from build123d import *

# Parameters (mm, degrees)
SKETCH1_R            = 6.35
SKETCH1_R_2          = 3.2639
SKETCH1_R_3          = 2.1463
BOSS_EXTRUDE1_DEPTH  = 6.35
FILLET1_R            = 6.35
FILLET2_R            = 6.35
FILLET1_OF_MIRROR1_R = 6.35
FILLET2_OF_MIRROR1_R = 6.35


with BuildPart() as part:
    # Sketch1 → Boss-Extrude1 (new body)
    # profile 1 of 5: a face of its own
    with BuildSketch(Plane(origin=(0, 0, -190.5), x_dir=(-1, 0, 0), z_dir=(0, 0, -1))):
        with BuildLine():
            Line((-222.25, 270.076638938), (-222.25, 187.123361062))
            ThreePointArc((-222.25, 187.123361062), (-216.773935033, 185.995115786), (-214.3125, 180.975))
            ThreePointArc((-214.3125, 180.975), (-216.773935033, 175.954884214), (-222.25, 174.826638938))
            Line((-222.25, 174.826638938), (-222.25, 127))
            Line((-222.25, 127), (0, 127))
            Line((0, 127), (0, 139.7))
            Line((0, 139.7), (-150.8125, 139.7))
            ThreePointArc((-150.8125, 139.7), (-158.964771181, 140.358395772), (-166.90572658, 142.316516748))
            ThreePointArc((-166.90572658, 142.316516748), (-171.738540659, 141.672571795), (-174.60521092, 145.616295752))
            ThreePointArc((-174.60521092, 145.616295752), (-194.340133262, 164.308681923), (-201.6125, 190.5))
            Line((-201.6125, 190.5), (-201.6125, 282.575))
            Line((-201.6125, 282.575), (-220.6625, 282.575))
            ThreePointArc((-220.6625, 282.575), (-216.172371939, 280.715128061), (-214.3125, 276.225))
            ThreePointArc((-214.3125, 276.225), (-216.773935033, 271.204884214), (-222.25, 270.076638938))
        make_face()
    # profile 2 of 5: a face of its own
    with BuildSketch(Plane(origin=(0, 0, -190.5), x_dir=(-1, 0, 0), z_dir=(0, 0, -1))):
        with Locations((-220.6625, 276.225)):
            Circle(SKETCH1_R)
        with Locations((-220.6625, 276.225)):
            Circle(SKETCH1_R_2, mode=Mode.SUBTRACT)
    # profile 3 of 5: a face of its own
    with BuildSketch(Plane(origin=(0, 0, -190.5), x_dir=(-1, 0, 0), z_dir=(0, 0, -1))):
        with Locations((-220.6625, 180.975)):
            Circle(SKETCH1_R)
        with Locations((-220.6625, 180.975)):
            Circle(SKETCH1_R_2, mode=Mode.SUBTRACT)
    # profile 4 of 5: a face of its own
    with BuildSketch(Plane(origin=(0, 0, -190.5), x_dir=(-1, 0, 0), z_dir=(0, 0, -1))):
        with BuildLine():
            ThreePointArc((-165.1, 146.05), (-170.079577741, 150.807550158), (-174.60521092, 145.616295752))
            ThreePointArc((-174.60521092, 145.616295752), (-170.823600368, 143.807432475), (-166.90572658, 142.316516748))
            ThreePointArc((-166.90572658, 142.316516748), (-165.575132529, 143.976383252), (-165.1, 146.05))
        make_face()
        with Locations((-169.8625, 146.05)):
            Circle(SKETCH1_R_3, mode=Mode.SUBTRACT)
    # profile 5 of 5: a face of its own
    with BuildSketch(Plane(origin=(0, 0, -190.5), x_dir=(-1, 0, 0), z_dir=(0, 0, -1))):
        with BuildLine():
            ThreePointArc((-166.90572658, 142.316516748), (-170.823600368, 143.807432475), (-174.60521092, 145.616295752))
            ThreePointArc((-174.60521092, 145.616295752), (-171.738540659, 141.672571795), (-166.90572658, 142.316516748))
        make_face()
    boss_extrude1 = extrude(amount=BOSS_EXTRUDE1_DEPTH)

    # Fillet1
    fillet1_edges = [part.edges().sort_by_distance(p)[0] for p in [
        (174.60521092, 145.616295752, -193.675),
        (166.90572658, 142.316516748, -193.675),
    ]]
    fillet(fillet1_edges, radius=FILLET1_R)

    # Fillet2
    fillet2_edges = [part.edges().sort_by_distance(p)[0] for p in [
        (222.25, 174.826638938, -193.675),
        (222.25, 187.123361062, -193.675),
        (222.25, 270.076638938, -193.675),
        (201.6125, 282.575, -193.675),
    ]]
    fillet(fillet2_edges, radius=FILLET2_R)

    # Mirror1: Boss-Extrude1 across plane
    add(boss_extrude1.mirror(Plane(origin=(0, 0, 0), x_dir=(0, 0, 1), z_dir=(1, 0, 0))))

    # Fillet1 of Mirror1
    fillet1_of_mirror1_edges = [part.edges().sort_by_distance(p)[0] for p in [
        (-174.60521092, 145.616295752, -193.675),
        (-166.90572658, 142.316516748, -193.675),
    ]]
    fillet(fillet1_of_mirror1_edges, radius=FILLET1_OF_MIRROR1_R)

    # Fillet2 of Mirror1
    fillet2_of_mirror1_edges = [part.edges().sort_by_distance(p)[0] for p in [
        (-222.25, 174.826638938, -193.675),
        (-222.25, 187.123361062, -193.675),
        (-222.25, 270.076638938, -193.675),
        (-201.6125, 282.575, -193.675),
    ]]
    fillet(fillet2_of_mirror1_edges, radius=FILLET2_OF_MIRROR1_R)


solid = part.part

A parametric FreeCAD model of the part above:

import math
import FreeCAD as App
import Part
import Sketcher

V = App.Vector
Q = App.Units.Quantity


def edges_at(feature, points):
    """Names of the edges that pass closest to the given points."""
    edges = feature.Shape.Edges
    near = lambda p: min(range(len(edges)), key=lambda i: edges[i].distToShape(Part.Vertex(*p))[0])
    return sorted({f"Edge{near(p) + 1}" for p in points})

doc = App.newDocument("Part")
params = doc.addObject("Spreadsheet::Sheet", "Params")
for row, (alias, value) in enumerate([
    ("sketch1_radius", "2 in"),
    ("sketch1_radius2", "0.25 in"),
    ("sketch1_diameter", "0.257 in"),
    ("sketch1_diameter2", "0.169 in"),
    ("sketch1_height", "0.5 in"),
    ("pad1_length", "0.25 in"),
    ("fillet_radius", "0.25 in"),
    ("fillet2_radius", "0.25 in"),
    ("fillet3_radius", "0.25 in"),
    ("fillet4_radius", "0.25 in"),
], start=1):
    params.set(f"A{row}", alias)
    params.set(f"B{row}", "=" + value)
    params.setAlias(f"B{row}", alias)

body = doc.addObject("PartDesign::Body", "Body")

# Sketch on XY plane
sketch1 = body.newObject("Sketcher::SketchObject", "Sketch")
sketch1.AttachmentSupport = (doc.getObject("XY_Plane"), [""])
sketch1.MapMode = "FlatFace"
sketch1.AttachmentOffset = App.Placement(V(0, 0, -7.5 * 25.4), App.Rotation())
sketch1.addGeometry([
    Part.LineSegment(V(222.25, 270.076639, 0), V(222.25, 187.123361, 0)),  # 0
    Part.ArcOfCircle(Part.Circle(V(220.6625, 180.975, 0), V(0, 0, 1), 6.35), math.radians(-75.522488), math.radians(75.522488)),  # 1
    Part.LineSegment(V(222.25, 174.826639, 0), V(222.25, 127, 0)),  # 2
    Part.LineSegment(V(222.25, 127, 0), V(0, 127, 0)),  # 3
    Part.LineSegment(V(0, 127, 0), V(0, 139.7, 0)),  # 4
    Part.LineSegment(V(0, 139.7, 0), V(150.8125, 139.7, 0)),  # 5
    Part.ArcOfCircle(Part.Circle(V(150.8125, 190.5, 0), V(0, 0, 1), 50.8), math.radians(-90), math.radians(-71.530741)),  # 6
    Part.ArcOfCircle(Part.Circle(V(169.8625, 146.05, 0), V(0, 0, 1), 4.7625), math.radians(180), math.radians(231.622147)),  # 7
    Part.ArcOfCircle(Part.Circle(V(169.8625, 146.05, 0), V(0, 0, 1), 4.7625), math.radians(-5.224966), math.radians(180)),  # 8
    Part.ArcOfCircle(Part.Circle(V(150.8125, 190.5, 0), V(0, 0, 1), 50.8), math.radians(-62.072078), math.radians(0)),  # 9
    Part.LineSegment(V(201.6125, 190.5, 0), V(201.6125, 282.575, 0)),  # 10
    Part.LineSegment(V(201.6125, 282.575, 0), V(220.6625, 282.575, 0)),  # 11
    Part.ArcOfCircle(Part.Circle(V(220.6625, 276.225, 0), V(0, 0, 1), 6.35), math.radians(-75.522488), math.radians(90)),  # 12
    Part.Circle(V(220.6625, 180.975, 0), V(0, 0, 1), 3.2639),  # 13
    Part.Circle(V(220.6625, 276.225, 0), V(0, 0, 1), 3.2639),  # 14
    Part.Circle(V(169.8625, 146.05, 0), V(0, 0, 1), 2.1463),  # 15
], False)
sketch1.addConstraint([
    Sketcher.Constraint("Coincident", 0, 2, 1, 2),
    Sketcher.Constraint("Coincident", 1, 1, 2, 1),
    Sketcher.Constraint("Coincident", 2, 2, 3, 1),
    Sketcher.Constraint("Coincident", 3, 2, 4, 1),
    Sketcher.Constraint("Coincident", 4, 2, 5, 1),
    Sketcher.Constraint("Tangent", 5, 2, 6, 1),
    Sketcher.Constraint("Coincident", 6, 2, 7, 2),
    Sketcher.Constraint("Tangent", 7, 1, 8, 2),
    Sketcher.Constraint("Coincident", 8, 1, 9, 1),
    Sketcher.Constraint("Tangent", 9, 2, 10, 1),
    Sketcher.Constraint("Coincident", 10, 2, 11, 1),
    Sketcher.Constraint("Tangent", 11, 2, 12, 2),
    Sketcher.Constraint("Coincident", 12, 1, 0, 1),
    Sketcher.Constraint("Vertical", 0),
    Sketcher.Constraint("Vertical", 2),
    Sketcher.Constraint("Horizontal", 3),
    Sketcher.Constraint("Vertical", 4),
    Sketcher.Constraint("Horizontal", 5),
    Sketcher.Constraint("Vertical", 10),
    Sketcher.Constraint("Horizontal", 11),
    Sketcher.Constraint("Coincident", 9, 3, 6, 3),
    Sketcher.Constraint("Coincident", 13, 3, 1, 3),
    Sketcher.Constraint("Coincident", 14, 3, 12, 3),
    Sketcher.Constraint("Coincident", 15, 3, 7, 3),
    Sketcher.Constraint("Equal", 7, 8),
    Sketcher.Constraint("Equal", 6, 9),
    Sketcher.Constraint("Equal", 1, 12),
    Sketcher.Constraint("Equal", 13, 14),
    Sketcher.Constraint("PointOnObject", 3, 2, -2),
    Sketcher.Constraint("Horizontal", 15, 3, 7, 1),
    Sketcher.Constraint("Vertical", 1, 3, 12, 3),
    Sketcher.Constraint("Vertical", 0, 2, 1, 1),
    Sketcher.Constraint("Radius", 6, Q("2 in")),
    Sketcher.Constraint("Radius", 1, Q("0.25 in")),
    Sketcher.Constraint("Diameter", 13, Q("0.257 in")),
    Sketcher.Constraint("Diameter", 15, Q("0.169 in")),
    Sketcher.Constraint("DistanceY", 4, 1, 4, 2, Q("0.5 in")),
    Sketcher.Constraint("DistanceY", -1, 1, 2, 2, Q("5 in")),
    Sketcher.Constraint("Radius", 7, Q("0.1875 in")),
    Sketcher.Constraint("DistanceX", 7, 3, 1, 3, Q("2 in")),
    Sketcher.Constraint("DistanceY", 1, 3, 10, 2, Q("4 in")),
    Sketcher.Constraint("DistanceX", 3, 2, 3, 1, Q("8.75 in")),
    Sketcher.Constraint("DistanceX", 11, 1, 11, 2, Q("0.75 in")),
    Sketcher.Constraint("DistanceX", -1, 1, 7, 1, Q("6.5 in")),
    Sketcher.Constraint("DistanceY", 10, 1, 10, 2, Q("3.625 in")),
    Sketcher.Constraint("DistanceY", -1, 1, 7, 3, Q("5.75 in")),
])
sketch1.setExpression("Constraints[32]", "Params.sketch1_radius")
sketch1.setExpression("Constraints[33]", "Params.sketch1_radius2")
sketch1.setExpression("Constraints[34]", "Params.sketch1_diameter")
sketch1.setExpression("Constraints[35]", "Params.sketch1_diameter2")
sketch1.setExpression("Constraints[36]", "Params.sketch1_height")
pad1 = body.newObject("PartDesign::Pad", "Pad")
pad1.Profile = sketch1
pad1.setExpression("Length", "Params.pad1_length")
pad1.Reversed = True
doc.recompute()

fillet = body.newObject("PartDesign::Fillet", "Fillet")
fillet.Base = (pad1, edges_at(pad1, [(174.605, 145.616, -193.675), (166.906, 142.317, -193.675)]))
fillet.setExpression("Radius", "Params.fillet_radius")
doc.recompute()

fillet2 = body.newObject("PartDesign::Fillet", "Fillet001")
fillet2.Base = (fillet, edges_at(fillet, [
    (222.25, 174.827, -193.675),
    (222.25, 187.123, -193.675),
    (222.25, 270.077, -193.675),
    (201.613, 282.575, -193.675),
]))
fillet2.setExpression("Radius", "Params.fillet2_radius")
doc.recompute()

mirrored = body.newObject("PartDesign::Mirrored", "Mirrored")
mirrored.Originals = [pad1]
mirrored.MirrorPlane = (doc.getObject("YZ_Plane"), [""])
body.Tip = mirrored
doc.recompute()

fillet3 = body.newObject("PartDesign::Fillet", "Fillet002")
fillet3.Base = (mirrored, edges_at(mirrored, [(-174.605, 145.616, -193.675), (-166.906, 142.317, -193.675)]))
fillet3.setExpression("Radius", "Params.fillet3_radius")
doc.recompute()

fillet4 = body.newObject("PartDesign::Fillet", "Fillet003")
fillet4.Base = (fillet3, edges_at(fillet3, [
    (-222.25, 174.827, -193.675),
    (-222.25, 187.123, -193.675),
    (-222.25, 270.077, -193.675),
    (-201.613, 282.575, -193.675),
]))
fillet4.setExpression("Radius", "Params.fillet4_radius")

doc.recompute()
